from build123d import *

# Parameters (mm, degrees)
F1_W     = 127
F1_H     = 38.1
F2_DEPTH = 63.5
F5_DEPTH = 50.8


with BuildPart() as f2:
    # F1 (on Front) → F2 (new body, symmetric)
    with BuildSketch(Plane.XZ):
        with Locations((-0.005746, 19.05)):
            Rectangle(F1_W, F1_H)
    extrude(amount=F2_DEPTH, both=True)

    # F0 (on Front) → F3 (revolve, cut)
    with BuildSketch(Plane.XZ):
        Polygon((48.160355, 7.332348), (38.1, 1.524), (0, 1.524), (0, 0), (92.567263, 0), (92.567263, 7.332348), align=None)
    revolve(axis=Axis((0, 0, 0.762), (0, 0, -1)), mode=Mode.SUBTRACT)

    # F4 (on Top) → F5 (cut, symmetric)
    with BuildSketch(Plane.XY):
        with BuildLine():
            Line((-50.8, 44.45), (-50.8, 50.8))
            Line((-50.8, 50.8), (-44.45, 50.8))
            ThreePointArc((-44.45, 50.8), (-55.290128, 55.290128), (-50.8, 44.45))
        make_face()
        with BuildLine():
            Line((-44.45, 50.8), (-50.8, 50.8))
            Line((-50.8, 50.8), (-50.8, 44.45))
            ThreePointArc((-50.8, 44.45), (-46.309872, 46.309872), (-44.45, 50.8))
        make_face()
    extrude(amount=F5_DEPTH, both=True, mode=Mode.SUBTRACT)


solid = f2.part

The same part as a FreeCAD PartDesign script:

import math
import FreeCAD as App
import Part
import Sketcher

V = App.Vector
Q = App.Units.Quantity


def add_polygon(sketch, points):
    """Adds a closed chain of lines whose ends are joined by coincident constraints."""
    first, n = sketch.GeometryCount, len(points)
    for a, b in zip(points, points[1:] + points[:1]):
        sketch.addGeometry(Part.LineSegment(App.Vector(*a, 0), App.Vector(*b, 0)), False)
    for i in range(n):
        sketch.addConstraint(Sketcher.Constraint("Coincident", first + i, 2, first + (i + 1) % n, 1))

doc = App.newDocument("Part")
params = doc.addObject("Spreadsheet::Sheet", "Params")
for row, (alias, value) in enumerate([
    ("sketch1_width", "5 in"),
    ("sketch1_height", "1.5 in"),
    ("pad1_length", "5 in"),
    ("sketch2_width", "1.5 in"),
    ("sketch2_height", "0.06 in"),
    ("groove_angle", "360 deg"),
    ("sketch3_radius", "0.25 in"),
    ("pocket1_length", "4 in"),
], start=1):
    params.set(f"A{row}", alias)
    params.set(f"B{row}", "=" + value)
    params.setAlias(f"B{row}", alias)

body = doc.addObject("PartDesign::Body", "Body")

# Sketch on XZ plane
sketch1 = doc.addObject("Sketcher::SketchObject", "Sketch")
body.addObject(sketch1)
sketch1.AttachmentSupport = (doc.XZ_Plane, [""])
sketch1.MapMode = "FlatFace"
add_polygon(sketch1, [(-64, 38), (-64, 0), (63, 0), (63, 38)])  # lines 0-3
sketch1.addConstraint(Sketcher.Constraint("Vertical", 0))
sketch1.addConstraint(Sketcher.Constraint("Horizontal", 1))
sketch1.addConstraint(Sketcher.Constraint("Vertical", 2))
sketch1.addConstraint(Sketcher.Constraint("Horizontal", 3))
sketch1.addConstraint(Sketcher.Constraint("PointOnObject", 0, 2, -1))
sketch1.addConstraint(Sketcher.Constraint("DistanceX", 1, 1, 1, 2, Q("5 in")))
sketch1.addConstraint(Sketcher.Constraint("DistanceY", 0, 2, 0, 1, Q("1.5 in")))
sketch1.addConstraint(Sketcher.Constraint("DistanceX", 0, 2, -1, 1, Q("63.505746 mm")))
sketch1.setExpression("Constraints[9]", "Params.sketch1_width")
sketch1.setExpression("Constraints[10]", "Params.sketch1_height")
pad1 = doc.addObject("PartDesign::Pad", "Pad")
body.addObject(pad1)
pad1.Profile = sketch1
pad1.setExpression("Length", "Params.pad1_length")
pad1.Midplane = True

# Sketch on XZ plane
sketch2 = doc.addObject("Sketcher::SketchObject", "Sketch001")
body.addObject(sketch2)
sketch2.AttachmentSupport = (doc.XZ_Plane, [""])
sketch2.MapMode = "FlatFace"
add_polygon(sketch2, [(48.2, 7.3), (38.1, 1.5), (0, 1.5), (0, 0), (92.6, 0), (92.6, 7.3)])  # lines 0-5
sketch2.addConstraint(Sketcher.Constraint("Horizontal", 1))
sketch2.addConstraint(Sketcher.Constraint("Vertical", 2))
sketch2.addConstraint(Sketcher.Constraint("Horizontal", 3))
sketch2.addConstraint(Sketcher.Constraint("Vertical", 4))
sketch2.addConstraint(Sketcher.Constraint("Horizontal", 5))
sketch2.addConstraint(Sketcher.Constraint("Coincident", 2, 2, -1, 1))
sketch2.addConstraint(Sketcher.Constraint("DistanceX", 1, 2, 1, 1, Q("1.5 in")))
sketch2.addConstraint(Sketcher.Constraint("Angle", 0, Q("-150.000003 deg")))
sketch2.addConstraint(Sketcher.Constraint("DistanceY", 2, 2, 2, 1, Q("0.06 in")))
sketch2.addConstraint(Sketcher.Constraint("DistanceX", 3, 1, 3, 2, Q("92.567263 mm")))
sketch2.addConstraint(Sketcher.Constraint("DistanceX", 5, 2, 5, 1, Q("44.406908 mm")))
sketch2.setExpression("Constraints[12]", "Params.sketch2_width")
sketch2.setExpression("Constraints[14]", "Params.sketch2_height")
groove = doc.addObject("PartDesign::Groove", "Groove")
body.addObject(groove)
groove.Profile = sketch2
groove.ReferenceAxis = (sketch2, ["V_Axis"])
groove.setExpression("Angle", "Params.groove_angle")

# Sketch on XY plane
sketch3 = doc.addObject("Sketcher::SketchObject", "Sketch002")
body.addObject(sketch3)
sketch3.AttachmentSupport = (doc.XY_Plane, [""])
sketch3.MapMode = "FlatFace"
sketch3.addGeometry(Part.ArcOfCircle(Part.Circle(V(-51, 51, 0), V(0, 0, 1), 6), math.radians(0), math.radians(270)), False)
sketch3.addGeometry(Part.ArcOfCircle(Part.Circle(V(-51, 51, 0), V(0, 0, 1), 6), math.radians(-90), math.radians(0)), False)
sketch3.addConstraint(Sketcher.Constraint("Tangent", 0, 1, 1, 2))
sketch3.addConstraint(Sketcher.Constraint("Coincident", 1, 1, 0, 2))
sketch3.addConstraint(Sketcher.Constraint("Horizontal", 1, 3, 0, 1))
sketch3.addConstraint(Sketcher.Constraint("Vertical", 0, 3, 1, 1))
sketch3.addConstraint(Sketcher.Constraint("Radius", 0, Q("0.25 in")))
sketch3.addConstraint(Sketcher.Constraint("DistanceX", 0, 3, -1, 1, Q("2 in")))
sketch3.addConstraint(Sketcher.Constraint("DistanceY", -1, 1, 0, 3, Q("2 in")))
sketch3.setExpression("Constraints[4]", "Params.sketch3_radius")
pocket1 = doc.addObject("PartDesign::Pocket", "Pocket")
body.addObject(pocket1)
pocket1.Profile = sketch3
pocket1.setExpression("Length", "Params.pocket1_length")
pocket1.Midplane = True

doc.recompute()
